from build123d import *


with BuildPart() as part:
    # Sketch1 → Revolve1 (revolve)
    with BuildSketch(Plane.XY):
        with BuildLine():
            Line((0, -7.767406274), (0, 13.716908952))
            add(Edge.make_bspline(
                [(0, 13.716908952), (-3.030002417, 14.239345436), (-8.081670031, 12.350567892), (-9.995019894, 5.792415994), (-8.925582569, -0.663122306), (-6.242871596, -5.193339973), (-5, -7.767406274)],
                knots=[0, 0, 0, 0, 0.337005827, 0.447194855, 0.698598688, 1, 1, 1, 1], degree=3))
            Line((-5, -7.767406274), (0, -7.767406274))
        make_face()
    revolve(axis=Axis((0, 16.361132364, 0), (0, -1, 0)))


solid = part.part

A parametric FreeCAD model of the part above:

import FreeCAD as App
import Part
import Sketcher
from FreeCAD import Vector

doc = App.newDocument("Part")
params = doc.addObject("Spreadsheet::Sheet", "Params")
for row, (alias, value) in enumerate([
    ("revolution_angle", "360 deg"),
], start=1):
    params.set(f"A{row}", alias)
    params.set(f"B{row}", "=" + value)
    params.setAlias(f"B{row}", alias)

body = doc.addObject("PartDesign::Body", "Body")

# Sketch on XY plane
sketch1 = body.newObject("Sketcher::SketchObject", "Sketch")
sketch1.AttachmentSupport = (doc.getObject("XY_Plane"), [""])
sketch1.MapMode = "FlatFace"
sketch1.addGeometry([
    Part.LineSegment(Vector(0, -7.767406, 0), Vector(0, 13.716909, 0)),
    Part.BSplineCurve([Vector(0, 13.716909, 0), Vector(-3.030002, 14.239345, 0), Vector(-8.08167, 12.350568, 0), Vector(-9.99502, 5.792416, 0), Vector(-8.925583, -0.663122, 0), Vector(-6.242872, -5.19334, 0), Vector(-5, -7.767406, 0)], [4, 1, 1, 1, 4], [0, 0.337005827, 0.447194855, 0.698598688, 1], False, 3, [1, 1, 1, 1, 1, 1, 1], False),
    Part.LineSegment(Vector(-5, -7.767406, 0), Vector(0, -7.767406, 0)),
], False)
sketch1.addConstraint([
    Sketcher.Constraint("Block", 1),
    Sketcher.Constraint("Coincident", 0, 2, 1, 1),
    Sketcher.Constraint("Coincident", 1, 2, 2, 1),
    Sketcher.Constraint("Coincident", 2, 2, 0, 1),
    Sketcher.Constraint("Vertical", 0),
    Sketcher.Constraint("Horizontal", 2),
])
revolution = body.newObject("PartDesign::Revolution", "Revolution")
revolution.Profile = sketch1
revolution.ReferenceAxis = (sketch1, ["V_Axis"])
revolution.setExpression("Angle", "Params.revolution_angle")

doc.recompute()
